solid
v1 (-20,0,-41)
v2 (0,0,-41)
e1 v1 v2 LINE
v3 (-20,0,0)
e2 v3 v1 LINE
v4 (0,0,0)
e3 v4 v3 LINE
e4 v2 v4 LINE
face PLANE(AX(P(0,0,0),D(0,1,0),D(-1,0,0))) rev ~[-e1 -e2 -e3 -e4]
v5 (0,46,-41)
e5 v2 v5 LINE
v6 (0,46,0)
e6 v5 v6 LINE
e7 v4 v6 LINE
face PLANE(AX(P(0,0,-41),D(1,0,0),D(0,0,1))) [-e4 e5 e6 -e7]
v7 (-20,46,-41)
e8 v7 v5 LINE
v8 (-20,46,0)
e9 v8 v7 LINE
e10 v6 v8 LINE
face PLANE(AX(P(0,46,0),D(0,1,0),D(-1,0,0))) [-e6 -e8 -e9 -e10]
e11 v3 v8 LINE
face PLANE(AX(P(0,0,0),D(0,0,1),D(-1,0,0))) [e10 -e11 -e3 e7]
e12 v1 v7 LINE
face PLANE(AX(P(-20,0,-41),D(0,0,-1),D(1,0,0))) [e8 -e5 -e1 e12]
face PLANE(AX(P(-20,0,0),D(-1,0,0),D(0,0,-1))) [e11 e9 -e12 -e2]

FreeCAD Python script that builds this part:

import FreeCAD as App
import Part
import Sketcher


def add_polygon(sketch, points):
    """Adds a closed chain of lines whose ends are joined by coincident constraints."""
    first, n = sketch.GeometryCount, len(points)
    for a, b in zip(points, points[1:] + points[:1]):
        sketch.addGeometry(Part.LineSegment(App.Vector(*a, 0), App.Vector(*b, 0)), False)
    for i in range(n):
        sketch.addConstraint(Sketcher.Constraint("Coincident", first + i, 2, first + (i + 1) % n, 1))

doc = App.newDocument("Part")
body = doc.addObject("PartDesign::Body", "Body")

sketch1 = doc.addObject("Sketcher::SketchObject", "Sketch")
body.addObject(sketch1)
sketch1.AttachmentSupport = (doc.XZ_Plane, [""])
sketch1.MapMode = "FlatFace"
add_polygon(sketch1, [(-20, 0), (0, 0), (0, -41), (-20, -41)])
sketch1.addConstraint([
    Sketcher.Constraint("Horizontal", 0),
    Sketcher.Constraint("Vertical", 1),
    Sketcher.Constraint("Horizontal", 2),
    Sketcher.Constraint("Vertical", 3),
    Sketcher.Constraint("Coincident", 0, 2, -1, 1),
    Sketcher.Constraint("DistanceX", 0, 1, 0, 2, 20.0),
    Sketcher.Constraint("DistanceY", 1, 2, 1, 1, 41.0),
])
pad1 = doc.addObject("PartDesign::Pad", "Pad")
body.addObject(pad1)
pad1.Profile = sketch1
pad1.Length = 46
pad1.Reversed = True

doc.recompute()
